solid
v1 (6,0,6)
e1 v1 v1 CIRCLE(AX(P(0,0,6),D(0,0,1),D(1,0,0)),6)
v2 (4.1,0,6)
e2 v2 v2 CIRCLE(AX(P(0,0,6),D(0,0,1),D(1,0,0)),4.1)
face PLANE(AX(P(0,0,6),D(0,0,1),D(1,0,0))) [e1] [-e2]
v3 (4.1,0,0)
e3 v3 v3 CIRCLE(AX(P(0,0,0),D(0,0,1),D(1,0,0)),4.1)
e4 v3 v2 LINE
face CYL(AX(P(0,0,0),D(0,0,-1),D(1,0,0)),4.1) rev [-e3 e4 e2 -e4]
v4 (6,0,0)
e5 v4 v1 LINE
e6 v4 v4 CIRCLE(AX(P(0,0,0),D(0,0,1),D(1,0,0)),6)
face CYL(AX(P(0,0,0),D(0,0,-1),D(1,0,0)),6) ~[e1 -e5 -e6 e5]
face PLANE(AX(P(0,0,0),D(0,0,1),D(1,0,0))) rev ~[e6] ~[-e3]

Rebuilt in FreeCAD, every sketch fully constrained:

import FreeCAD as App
import Part
import Sketcher

V = App.Vector
Q = App.Units.Quantity

doc = App.newDocument("Part")
body = doc.addObject("PartDesign::Body", "Body")

# Sketch on XY plane
sketch1 = body.newObject("Sketcher::SketchObject", "Sketch")
sketch1.AttachmentSupport = (doc.getObject("XY_Plane"), [""])
sketch1.MapMode = "FlatFace"
sketch1.addGeometry(Part.Circle(V(0, 0, 0), V(0, 0, 1), 4.1), False)
sketch1.addConstraint(Sketcher.Constraint("Coincident", 0, 3, -1, 1))
sketch1.addConstraint(Sketcher.Constraint("Diameter", 0, Q("8.2 mm")))
pad1 = body.newObject("PartDesign::Pad", "Pad")
pad1.Profile = sketch1
pad1.Length = 6
body2 = doc.addObject("PartDesign::Body", "Body001")

# Sketch on XY plane
sketch2 = body2.newObject("Sketcher::SketchObject", "Sketch001")
sketch2.AttachmentSupport = (doc.getObject("XY_Plane001"), [""])
sketch2.MapMode = "FlatFace"
sketch2.addGeometry(Part.Circle(V(0, 0, 0), V(0, 0, 1), 6), False)
sketch2.addConstraint(Sketcher.Constraint("Coincident", 0, 3, -1, 1))
sketch2.addConstraint(Sketcher.Constraint("Diameter", 0, Q("12 mm")))
pad2 = body2.newObject("PartDesign::Pad", "Pad001")
pad2.Profile = sketch2
pad2.Length = 6
doc.recompute()

boolean = body2.newObject("PartDesign::Boolean", "Boolean")
boolean.Type = "Cut"
boolean.addObjects([body])

doc.recompute()
